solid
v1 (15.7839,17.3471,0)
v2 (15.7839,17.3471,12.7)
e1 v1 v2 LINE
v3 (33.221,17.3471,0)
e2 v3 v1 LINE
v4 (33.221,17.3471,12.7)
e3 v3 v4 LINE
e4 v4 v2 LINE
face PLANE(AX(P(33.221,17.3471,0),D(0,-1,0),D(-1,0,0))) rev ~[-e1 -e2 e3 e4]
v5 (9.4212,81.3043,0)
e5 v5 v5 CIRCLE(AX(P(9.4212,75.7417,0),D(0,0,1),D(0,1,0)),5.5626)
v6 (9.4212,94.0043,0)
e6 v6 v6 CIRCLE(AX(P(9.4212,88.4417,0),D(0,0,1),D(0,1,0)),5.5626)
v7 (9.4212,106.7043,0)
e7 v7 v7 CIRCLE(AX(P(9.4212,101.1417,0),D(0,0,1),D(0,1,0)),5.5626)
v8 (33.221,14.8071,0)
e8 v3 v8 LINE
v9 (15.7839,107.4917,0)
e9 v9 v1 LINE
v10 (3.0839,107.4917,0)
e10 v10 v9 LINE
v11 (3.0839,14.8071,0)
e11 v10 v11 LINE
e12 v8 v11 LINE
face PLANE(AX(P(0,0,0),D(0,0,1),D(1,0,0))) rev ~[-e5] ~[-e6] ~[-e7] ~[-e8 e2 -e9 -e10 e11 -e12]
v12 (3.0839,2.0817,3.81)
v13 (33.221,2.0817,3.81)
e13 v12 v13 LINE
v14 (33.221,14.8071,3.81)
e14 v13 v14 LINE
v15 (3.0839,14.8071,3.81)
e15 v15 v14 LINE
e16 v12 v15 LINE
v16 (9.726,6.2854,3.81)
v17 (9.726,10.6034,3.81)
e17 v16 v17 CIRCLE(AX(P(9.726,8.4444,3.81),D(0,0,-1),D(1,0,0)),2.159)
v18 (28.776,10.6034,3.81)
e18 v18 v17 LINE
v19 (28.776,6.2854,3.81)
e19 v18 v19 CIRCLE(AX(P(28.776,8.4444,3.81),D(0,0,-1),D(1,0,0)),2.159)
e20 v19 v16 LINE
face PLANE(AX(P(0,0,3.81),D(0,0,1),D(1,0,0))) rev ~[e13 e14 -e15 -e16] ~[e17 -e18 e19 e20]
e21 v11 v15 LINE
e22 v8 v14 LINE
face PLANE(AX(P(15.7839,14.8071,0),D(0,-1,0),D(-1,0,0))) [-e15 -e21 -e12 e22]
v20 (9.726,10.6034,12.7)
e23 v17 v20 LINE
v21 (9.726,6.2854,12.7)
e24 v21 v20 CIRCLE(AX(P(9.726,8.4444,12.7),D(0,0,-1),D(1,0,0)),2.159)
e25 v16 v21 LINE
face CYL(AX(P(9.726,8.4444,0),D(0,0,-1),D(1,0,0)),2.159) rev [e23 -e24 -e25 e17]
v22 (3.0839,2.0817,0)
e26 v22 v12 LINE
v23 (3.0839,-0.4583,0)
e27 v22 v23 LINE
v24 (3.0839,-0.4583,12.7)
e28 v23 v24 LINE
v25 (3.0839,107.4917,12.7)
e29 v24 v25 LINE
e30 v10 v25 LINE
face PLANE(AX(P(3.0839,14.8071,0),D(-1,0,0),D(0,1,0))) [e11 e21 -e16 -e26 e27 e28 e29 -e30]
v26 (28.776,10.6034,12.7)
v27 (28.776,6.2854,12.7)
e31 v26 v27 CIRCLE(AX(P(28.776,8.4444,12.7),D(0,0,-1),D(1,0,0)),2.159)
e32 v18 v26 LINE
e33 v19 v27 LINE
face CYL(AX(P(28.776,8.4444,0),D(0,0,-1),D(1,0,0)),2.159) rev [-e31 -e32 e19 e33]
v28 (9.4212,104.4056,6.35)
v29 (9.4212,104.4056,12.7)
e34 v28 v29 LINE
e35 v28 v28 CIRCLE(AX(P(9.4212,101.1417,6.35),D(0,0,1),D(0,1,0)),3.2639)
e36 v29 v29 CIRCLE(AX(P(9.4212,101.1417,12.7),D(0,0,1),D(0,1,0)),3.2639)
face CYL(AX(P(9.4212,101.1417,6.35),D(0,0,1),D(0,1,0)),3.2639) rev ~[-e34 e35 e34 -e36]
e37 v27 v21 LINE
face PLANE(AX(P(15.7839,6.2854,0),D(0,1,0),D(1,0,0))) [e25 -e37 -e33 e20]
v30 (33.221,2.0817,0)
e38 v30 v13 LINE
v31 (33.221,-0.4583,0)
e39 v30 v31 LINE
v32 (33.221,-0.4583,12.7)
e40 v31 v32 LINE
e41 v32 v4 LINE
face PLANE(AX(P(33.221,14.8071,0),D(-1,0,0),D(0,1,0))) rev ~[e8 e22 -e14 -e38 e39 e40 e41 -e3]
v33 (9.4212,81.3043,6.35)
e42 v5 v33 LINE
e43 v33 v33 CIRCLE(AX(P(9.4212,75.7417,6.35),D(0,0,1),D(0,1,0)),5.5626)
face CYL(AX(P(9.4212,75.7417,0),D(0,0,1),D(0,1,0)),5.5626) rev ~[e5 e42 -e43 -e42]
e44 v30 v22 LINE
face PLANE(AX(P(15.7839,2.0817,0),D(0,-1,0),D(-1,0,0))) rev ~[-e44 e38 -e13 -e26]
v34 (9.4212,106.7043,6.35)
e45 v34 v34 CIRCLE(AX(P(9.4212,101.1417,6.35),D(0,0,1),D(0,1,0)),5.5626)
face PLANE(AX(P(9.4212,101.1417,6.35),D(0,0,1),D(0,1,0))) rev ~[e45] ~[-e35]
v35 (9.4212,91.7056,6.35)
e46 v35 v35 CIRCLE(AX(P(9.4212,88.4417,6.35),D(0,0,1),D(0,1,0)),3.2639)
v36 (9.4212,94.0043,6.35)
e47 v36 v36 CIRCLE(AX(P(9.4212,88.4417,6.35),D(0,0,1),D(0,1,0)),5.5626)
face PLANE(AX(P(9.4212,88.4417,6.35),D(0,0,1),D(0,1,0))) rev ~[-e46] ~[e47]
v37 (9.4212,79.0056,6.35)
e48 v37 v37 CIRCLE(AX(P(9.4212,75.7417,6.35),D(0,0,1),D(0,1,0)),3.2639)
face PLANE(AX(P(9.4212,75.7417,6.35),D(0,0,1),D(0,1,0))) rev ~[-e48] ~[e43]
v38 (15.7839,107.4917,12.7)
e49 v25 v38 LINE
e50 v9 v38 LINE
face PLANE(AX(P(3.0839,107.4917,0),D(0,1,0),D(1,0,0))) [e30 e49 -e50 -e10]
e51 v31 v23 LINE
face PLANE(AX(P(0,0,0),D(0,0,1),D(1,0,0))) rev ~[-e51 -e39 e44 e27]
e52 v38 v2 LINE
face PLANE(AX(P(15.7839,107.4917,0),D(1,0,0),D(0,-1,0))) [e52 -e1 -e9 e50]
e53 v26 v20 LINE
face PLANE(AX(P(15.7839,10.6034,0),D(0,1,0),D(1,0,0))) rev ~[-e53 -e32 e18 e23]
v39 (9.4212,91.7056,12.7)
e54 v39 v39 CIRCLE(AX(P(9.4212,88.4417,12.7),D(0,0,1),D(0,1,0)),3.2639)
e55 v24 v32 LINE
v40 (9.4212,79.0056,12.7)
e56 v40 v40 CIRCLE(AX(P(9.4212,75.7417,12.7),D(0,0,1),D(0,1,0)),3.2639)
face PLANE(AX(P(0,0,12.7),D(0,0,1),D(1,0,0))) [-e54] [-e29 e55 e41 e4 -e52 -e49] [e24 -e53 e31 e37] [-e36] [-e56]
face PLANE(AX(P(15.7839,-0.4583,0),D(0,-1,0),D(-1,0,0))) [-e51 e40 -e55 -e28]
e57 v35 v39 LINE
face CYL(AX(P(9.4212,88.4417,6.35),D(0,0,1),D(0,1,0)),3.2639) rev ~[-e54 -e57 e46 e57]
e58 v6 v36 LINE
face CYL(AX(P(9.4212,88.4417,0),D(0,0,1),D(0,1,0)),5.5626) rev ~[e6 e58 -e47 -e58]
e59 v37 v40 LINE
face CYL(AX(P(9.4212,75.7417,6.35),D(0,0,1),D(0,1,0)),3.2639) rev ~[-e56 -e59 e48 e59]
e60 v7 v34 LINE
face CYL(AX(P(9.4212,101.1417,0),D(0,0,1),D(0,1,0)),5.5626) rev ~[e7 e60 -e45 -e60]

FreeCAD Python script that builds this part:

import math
import FreeCAD as App
import Part
import Sketcher
Q = App.Units.Quantity


def add_polygon(sketch, points):
    """Adds a closed chain of lines whose ends are joined by coincident constraints."""
    first, n = sketch.GeometryCount, len(points)
    for a, b in zip(points, points[1:] + points[:1]):
        sketch.addGeometry(Part.LineSegment(App.Vector(*a, 0), App.Vector(*b, 0)), False)
    for i in range(n):
        sketch.addConstraint(Sketcher.Constraint("Coincident", first + i, 2, first + (i + 1) % n, 1))

doc = App.newDocument("Part")
params = doc.addObject("Spreadsheet::Sheet", "Params")
for row, (alias, value) in enumerate([
    ("sketch1_width", "0.5 in"),
    ("sketch1_height", "4.25 in"),
    ("sketch1_height2", "0.701 in"),
    ("pad1_length", "0.5 in"),
    ("sketch2_diameter", "0.257 in"),
    ("hole_diameter", "0.257 in"),
    ("hole_cbore_diameter", "0.438 in"),
    ("hole_cbore_depth", "0.25 in"),
    ("sketch3_height", "0.501 in"),
    ("pocket1_length", "0.15 in"),
    ("sketch4_radius", "0.085 in"),
    ("sketch4_width", "0.75 in"),
], start=1):
    params.set(f"A{row}", alias)
    params.set(f"B{row}", "=" + value)
    params.setAlias(f"B{row}", alias)

body = doc.addObject("PartDesign::Body", "Body")

# Sketch on XY plane
sketch1 = doc.addObject("Sketcher::SketchObject", "Sketch")
body.addObject(sketch1)
sketch1.AttachmentSupport = (doc.XY_Plane, [""])
sketch1.MapMode = "FlatFace"
add_polygon(sketch1, [(16, 107), (3, 107), (3, 0), (33, 0), (33, 17), (16, 17)])  # lines 0-5
sketch1.addConstraint([
    Sketcher.Constraint("Horizontal", 0),
    Sketcher.Constraint("Vertical", 1),
    Sketcher.Constraint("Horizontal", 2),
    Sketcher.Constraint("Vertical", 3),
    Sketcher.Constraint("Horizontal", 4),
    Sketcher.Constraint("Vertical", 5),
    Sketcher.Constraint("DistanceX", 0, 2, 0, 1, Q("0.5 in")),
    Sketcher.Constraint("DistanceY", 1, 2, 1, 1, Q("4.25 in")),
    Sketcher.Constraint("DistanceX", 4, 2, 4, 1, Q("0.6865 in")),
    Sketcher.Constraint("DistanceY", 3, 1, 3, 2, Q("0.701 in")),
    Sketcher.Constraint("DistanceX", -1, 1, 0, 2, 3.084),
    Sketcher.Constraint("DistanceY", -1, 1, 0, 2, 107.4917),
])
sketch1.setExpression("Constraints[12]", "Params.sketch1_width")
sketch1.setExpression("Constraints[13]", "Params.sketch1_height")
sketch1.setExpression("Constraints[15]", "Params.sketch1_height2")
pad1 = doc.addObject("PartDesign::Pad", "Pad")
body.addObject(pad1)
pad1.Profile = sketch1
pad1.setExpression("Length", "Params.pad1_length")

# Sketch on XY plane
sketch2 = doc.addObject("Sketcher::SketchObject", "Sketch001")
body.addObject(sketch2)
sketch2.AttachmentSupport = (doc.XY_Plane, [""])
sketch2.MapMode = "FlatFace"
sketch2.addGeometry([
    Part.Circle(App.Vector(9.4, 101.1, 0), App.Vector(0, 0, 1), 3.3),
    Part.Circle(App.Vector(9.4, 88.4, 0), App.Vector(0, 0, 1), 3.3),
    Part.Circle(App.Vector(9.4, 75.7, 0), App.Vector(0, 0, 1), 3.3),
], False)
sketch2.addConstraint([
    Sketcher.Constraint("Equal", 0, 1),
    Sketcher.Constraint("Equal", 1, 2),
    Sketcher.Constraint("Vertical", 0, 3, 1, 3),
    Sketcher.Constraint("Vertical", 1, 3, 2, 3),
    Sketcher.Constraint("Diameter", 0, Q("0.257 in")),
    Sketcher.Constraint("DistanceY", 2, 3, 0, 3, Q("1 in")),
    Sketcher.Constraint("DistanceY", 1, 3, 0, 3, Q("0.5 in")),
    Sketcher.Constraint("DistanceX", -1, 1, 0, 3, 9.4212),
    Sketcher.Constraint("DistanceY", -1, 1, 0, 3, 101.1417),
])
sketch2.setExpression("Constraints[4]", "Params.sketch2_diameter")
doc.recompute()
hole = doc.addObject("PartDesign::Hole", "Hole")
body.addObject(hole)
hole.Profile = sketch2
hole.ThreadType = "None"
hole.setExpression("Diameter", "Params.hole_diameter")
hole.DepthType = "ThroughAll"
hole.HoleCutType = "Counterbore"
hole.setExpression("HoleCutDiameter", "Params.hole_cbore_diameter")
hole.setExpression("HoleCutDepth", "Params.hole_cbore_depth")
hole.Reversed = True

# Sketch on XY plane
sketch3 = doc.addObject("Sketcher::SketchObject", "Sketch002")
body.addObject(sketch3)
sketch3.AttachmentSupport = (doc.XY_Plane, [""])
sketch3.MapMode = "FlatFace"
add_polygon(sketch3, [(3, 15), (3, 2), (33, 2), (33, 15)])  # lines 0-3
sketch3.addConstraint([
    Sketcher.Constraint("Vertical", 0),
    Sketcher.Constraint("Horizontal", 1),
    Sketcher.Constraint("Vertical", 2),
    Sketcher.Constraint("Horizontal", 3),
    Sketcher.Constraint("DistanceY", 0, 2, 0, 1, Q("0.501 in")),
    Sketcher.Constraint("DistanceX", 1, 1, 1, 2, Q("1.1865 in")),
    Sketcher.Constraint("DistanceX", -1, 1, 0, 2, 3.084),
    Sketcher.Constraint("DistanceY", -1, 1, 0, 2, 2.0817),
])
sketch3.setExpression("Constraints[8]", "Params.sketch3_height")
pocket1 = doc.addObject("PartDesign::Pocket", "Pocket")
body.addObject(pocket1)
pocket1.Profile = sketch3
pocket1.setExpression("Length", "Params.pocket1_length")
pocket1.Reversed = True

# Sketch on XY plane
sketch4 = doc.addObject("Sketcher::SketchObject", "Sketch003")
body.addObject(sketch4)
sketch4.AttachmentSupport = (doc.XY_Plane, [""])
sketch4.MapMode = "FlatFace"
sketch4.addGeometry([
    Part.LineSegment(App.Vector(28.8, 10.6, 0), App.Vector(9.7, 10.6, 0)),
    Part.ArcOfCircle(Part.Circle(App.Vector(9.7, 8.4, 0), App.Vector(0, 0, 1), 2.2), math.radians(90), math.radians(270)),
    Part.LineSegment(App.Vector(9.7, 6.3, 0), App.Vector(28.8, 6.3, 0)),
    Part.ArcOfCircle(Part.Circle(App.Vector(28.8, 8.4, 0), App.Vector(0, 0, 1), 2.2), math.radians(-90), math.radians(90)),
], False)
sketch4.addConstraint([
    Sketcher.Constraint("Tangent", 0, 2, 1, 1),
    Sketcher.Constraint("Tangent", 1, 2, 2, 1),
    Sketcher.Constraint("Tangent", 2, 2, 3, 1),
    Sketcher.Constraint("Tangent", 3, 2, 0, 1),
    Sketcher.Constraint("Horizontal", 0),
    Sketcher.Constraint("Horizontal", 2),
    Sketcher.Constraint("Radius", 1, Q("0.085 in")),
    Sketcher.Constraint("DistanceX", 0, 2, 0, 1, Q("0.75 in")),
    Sketcher.Constraint("DistanceX", -1, 1, 1, 3, 9.726),
    Sketcher.Constraint("DistanceY", -1, 1, 1, 3, 8.4444),
])
sketch4.setExpression("Constraints[6]", "Params.sketch4_radius")
sketch4.setExpression("Constraints[7]", "Params.sketch4_width")
pocket2 = doc.addObject("PartDesign::Pocket", "Pocket001")
body.addObject(pocket2)
pocket2.Profile = sketch4
pocket2.Type = "ThroughAll"
pocket2.Reversed = True

doc.recompute()
